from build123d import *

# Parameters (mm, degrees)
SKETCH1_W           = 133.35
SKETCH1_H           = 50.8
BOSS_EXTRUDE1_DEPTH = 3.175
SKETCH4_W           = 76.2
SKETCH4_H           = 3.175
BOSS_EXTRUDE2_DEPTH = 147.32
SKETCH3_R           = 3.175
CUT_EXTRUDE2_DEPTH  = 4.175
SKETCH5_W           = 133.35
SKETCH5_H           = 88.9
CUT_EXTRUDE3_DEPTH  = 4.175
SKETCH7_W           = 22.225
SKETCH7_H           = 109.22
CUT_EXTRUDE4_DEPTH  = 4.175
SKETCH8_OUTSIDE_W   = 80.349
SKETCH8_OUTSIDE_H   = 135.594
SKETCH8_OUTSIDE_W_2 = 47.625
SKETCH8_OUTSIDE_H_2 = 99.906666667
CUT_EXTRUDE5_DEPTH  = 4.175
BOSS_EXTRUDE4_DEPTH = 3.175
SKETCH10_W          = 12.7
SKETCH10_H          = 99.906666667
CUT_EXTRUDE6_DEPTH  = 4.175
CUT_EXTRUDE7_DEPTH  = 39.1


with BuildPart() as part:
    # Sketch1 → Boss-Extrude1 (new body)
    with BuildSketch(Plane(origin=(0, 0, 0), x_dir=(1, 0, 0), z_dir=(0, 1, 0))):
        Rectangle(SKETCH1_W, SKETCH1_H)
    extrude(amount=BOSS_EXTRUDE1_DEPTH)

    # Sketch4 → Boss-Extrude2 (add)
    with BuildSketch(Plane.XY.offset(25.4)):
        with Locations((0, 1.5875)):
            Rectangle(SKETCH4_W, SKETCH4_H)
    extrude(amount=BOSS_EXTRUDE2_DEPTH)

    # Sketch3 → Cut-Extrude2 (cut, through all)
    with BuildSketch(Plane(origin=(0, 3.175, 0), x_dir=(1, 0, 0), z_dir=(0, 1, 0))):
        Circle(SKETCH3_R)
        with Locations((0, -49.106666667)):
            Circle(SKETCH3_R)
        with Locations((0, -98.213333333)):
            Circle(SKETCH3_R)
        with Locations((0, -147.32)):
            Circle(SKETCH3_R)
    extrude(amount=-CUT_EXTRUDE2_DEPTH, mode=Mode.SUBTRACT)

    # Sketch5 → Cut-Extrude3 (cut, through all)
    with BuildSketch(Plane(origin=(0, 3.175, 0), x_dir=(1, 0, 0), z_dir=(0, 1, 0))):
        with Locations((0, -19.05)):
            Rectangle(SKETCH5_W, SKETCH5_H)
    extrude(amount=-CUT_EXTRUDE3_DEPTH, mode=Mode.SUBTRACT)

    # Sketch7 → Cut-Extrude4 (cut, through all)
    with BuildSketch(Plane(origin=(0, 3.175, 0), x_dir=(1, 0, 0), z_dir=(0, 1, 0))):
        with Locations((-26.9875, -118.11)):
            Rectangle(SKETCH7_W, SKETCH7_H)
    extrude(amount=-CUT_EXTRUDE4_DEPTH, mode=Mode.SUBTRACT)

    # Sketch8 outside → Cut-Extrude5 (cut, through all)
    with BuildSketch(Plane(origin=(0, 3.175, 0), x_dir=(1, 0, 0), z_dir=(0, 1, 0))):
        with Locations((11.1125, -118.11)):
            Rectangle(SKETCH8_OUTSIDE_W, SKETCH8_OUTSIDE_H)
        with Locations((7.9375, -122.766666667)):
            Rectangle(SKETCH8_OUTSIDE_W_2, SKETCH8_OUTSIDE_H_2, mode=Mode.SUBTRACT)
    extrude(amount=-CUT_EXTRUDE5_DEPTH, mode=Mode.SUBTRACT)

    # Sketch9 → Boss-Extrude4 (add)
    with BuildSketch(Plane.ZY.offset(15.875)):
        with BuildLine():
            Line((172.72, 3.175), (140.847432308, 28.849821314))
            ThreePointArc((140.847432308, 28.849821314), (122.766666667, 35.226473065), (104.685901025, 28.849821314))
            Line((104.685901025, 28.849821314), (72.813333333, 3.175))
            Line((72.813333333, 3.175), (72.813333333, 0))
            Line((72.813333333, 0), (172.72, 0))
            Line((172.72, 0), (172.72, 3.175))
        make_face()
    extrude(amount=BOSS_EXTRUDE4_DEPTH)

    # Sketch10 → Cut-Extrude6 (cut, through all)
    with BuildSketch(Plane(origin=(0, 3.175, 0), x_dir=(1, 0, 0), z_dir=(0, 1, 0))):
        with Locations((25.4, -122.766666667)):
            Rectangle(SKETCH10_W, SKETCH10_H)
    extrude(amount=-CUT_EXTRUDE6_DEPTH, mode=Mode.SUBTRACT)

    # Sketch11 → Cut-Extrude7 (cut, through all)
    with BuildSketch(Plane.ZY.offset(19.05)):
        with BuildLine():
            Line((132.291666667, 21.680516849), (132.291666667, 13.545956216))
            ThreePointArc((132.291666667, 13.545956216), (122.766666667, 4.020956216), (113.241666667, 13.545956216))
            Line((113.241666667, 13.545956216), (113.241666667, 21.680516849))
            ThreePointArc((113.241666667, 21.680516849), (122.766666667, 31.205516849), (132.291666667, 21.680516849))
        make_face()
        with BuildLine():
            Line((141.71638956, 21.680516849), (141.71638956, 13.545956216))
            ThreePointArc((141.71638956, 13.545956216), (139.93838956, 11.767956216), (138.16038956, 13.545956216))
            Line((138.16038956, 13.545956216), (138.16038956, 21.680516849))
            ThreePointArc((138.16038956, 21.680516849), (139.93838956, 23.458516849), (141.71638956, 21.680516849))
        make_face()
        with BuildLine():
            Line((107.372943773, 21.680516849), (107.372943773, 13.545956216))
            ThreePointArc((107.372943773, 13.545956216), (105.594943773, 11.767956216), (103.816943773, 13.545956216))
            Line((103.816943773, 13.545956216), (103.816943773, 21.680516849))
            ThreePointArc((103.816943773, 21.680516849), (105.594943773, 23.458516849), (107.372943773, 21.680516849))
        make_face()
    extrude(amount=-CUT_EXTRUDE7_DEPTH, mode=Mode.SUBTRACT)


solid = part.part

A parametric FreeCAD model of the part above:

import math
import FreeCAD as App
import Part
import Sketcher
Q = App.Units.Quantity

doc = App.newDocument("Part")
body = doc.addObject("PartDesign::Body", "Body")

# Sketch on XZ plane
sketch1 = body.newObject("Sketcher::SketchObject", "Sketch")
sketch1.AttachmentSupport = (doc.getObject("XZ_Plane"), [""])
sketch1.MapMode = "FlatFace"
sketch1.addGeometry(Part.LineSegment(App.Vector(-67, -25, 0), App.Vector(-67, 25, 0)), False)
sketch1.addGeometry(Part.LineSegment(App.Vector(-67, 25, 0), App.Vector(67, 25, 0)), False)
sketch1.addGeometry(Part.LineSegment(App.Vector(67, 25, 0), App.Vector(67, -25, 0)), False)
sketch1.addGeometry(Part.LineSegment(App.Vector(67, -25, 0), App.Vector(-67, -25, 0)), False)
sketch1.addConstraint(Sketcher.Constraint("Coincident", 0, 2, 1, 1))
sketch1.addConstraint(Sketcher.Constraint("Coincident", 1, 2, 2, 1))
sketch1.addConstraint(Sketcher.Constraint("Coincident", 2, 2, 3, 1))
sketch1.addConstraint(Sketcher.Constraint("Coincident", 3, 2, 0, 1))
sketch1.addConstraint(Sketcher.Constraint("Vertical", 0))
sketch1.addConstraint(Sketcher.Constraint("Horizontal", 1))
sketch1.addConstraint(Sketcher.Constraint("Vertical", 2))
sketch1.addConstraint(Sketcher.Constraint("Horizontal", 3))
sketch1.addConstraint(Sketcher.Constraint("Symmetric", 0, 2, 2, 2, -1, 1))
sketch1.addConstraint(Sketcher.Constraint("DistanceY", 0, 1, 0, 2, Q("2 in")))
sketch1.addConstraint(Sketcher.Constraint("DistanceX", 1, 1, 1, 2, Q("5.25 in")))
pad1 = body.newObject("PartDesign::Pad", "Pad")
pad1.Profile = sketch1
pad1.Length = Q("0.125 in")
pad1.Reversed = True

# Sketch on XY plane
sketch2 = body.newObject("Sketcher::SketchObject", "Sketch001")
sketch2.AttachmentSupport = (doc.getObject("XY_Plane"), [""])
sketch2.MapMode = "FlatFace"
sketch2.AttachmentOffset = App.Placement(App.Vector(0, 0, 1 * 25.4), App.Rotation())
sketch2.addGeometry(Part.LineSegment(App.Vector(-38.1, 3.2, 0), App.Vector(-38.1, 0, 0)), False)
sketch2.addGeometry(Part.LineSegment(App.Vector(-38.1, 0, 0), App.Vector(38.1, 0, 0)), False)
sketch2.addGeometry(Part.LineSegment(App.Vector(38.1, 0, 0), App.Vector(38.1, 3.2, 0)), False)
sketch2.addGeometry(Part.LineSegment(App.Vector(38.1, 3.2, 0), App.Vector(-38.1, 3.2, 0)), False)
sketch2.addConstraint(Sketcher.Constraint("Coincident", 0, 2, 1, 1))
sketch2.addConstraint(Sketcher.Constraint("Coincident", 1, 2, 2, 1))
sketch2.addConstraint(Sketcher.Constraint("Coincident", 2, 2, 3, 1))
sketch2.addConstraint(Sketcher.Constraint("Coincident", 3, 2, 0, 1))
sketch2.addConstraint(Sketcher.Constraint("Vertical", 0))
sketch2.addConstraint(Sketcher.Constraint("Horizontal", 1))
sketch2.addConstraint(Sketcher.Constraint("Vertical", 2))
sketch2.addConstraint(Sketcher.Constraint("Horizontal", 3))
sketch2.addConstraint(Sketcher.Constraint("Symmetric", 0, 2, 1, 2, -1, 1))
sketch2.addConstraint(Sketcher.Constraint("DistanceX", 1, 1, 1, 2, Q("3 in")))
sketch2.addConstraint(Sketcher.Constraint("DistanceY", 0, 2, 0, 1, Q("0.125 in")))
pad2 = body.newObject("PartDesign::Pad", "Pad001")
pad2.Profile = sketch2
pad2.Length = Q("5.8 in")

# Sketch on XZ plane
sketch3 = body.newObject("Sketcher::SketchObject", "Sketch002")
sketch3.AttachmentSupport = (doc.getObject("XZ_Plane"), [""])
sketch3.MapMode = "FlatFace"
sketch3.AttachmentOffset = App.Placement(App.Vector(0, 0, -0.125 * 25.4), App.Rotation())
sketch3.addGeometry(Part.Circle(App.Vector(0, 0, 0), App.Vector(0, 0, 1), 3.2), False)
sketch3.addGeometry(Part.Circle(App.Vector(0, 49.1, 0), App.Vector(0, 0, 1), 3.2), False)
sketch3.addGeometry(Part.Circle(App.Vector(0, 98.2, 0), App.Vector(0, 0, 1), 3.2), False)
sketch3.addGeometry(Part.Circle(App.Vector(0, 147.3, 0), App.Vector(0, 0, 1), 3.2), False)
sketch3.addConstraint(Sketcher.Constraint("Coincident", 0, 3, -1, 1))
sketch3.addConstraint(Sketcher.Constraint("Equal", 0, 1))
sketch3.addConstraint(Sketcher.Constraint("Equal", 1, 2))
sketch3.addConstraint(Sketcher.Constraint("Equal", 2, 3))
sketch3.addConstraint(Sketcher.Constraint("PointOnObject", 1, 3, -2))
sketch3.addConstraint(Sketcher.Constraint("PointOnObject", 2, 3, -2))
sketch3.addConstraint(Sketcher.Constraint("PointOnObject", 3, 3, -2))
sketch3.addConstraint(Sketcher.Constraint("Diameter", 0, Q("0.25 in")))
sketch3.addConstraint(Sketcher.Constraint("DistanceY", -1, 1, 3, 3, Q("5.8 in")))
sketch3.addConstraint(Sketcher.Constraint("DistanceY", -1, 1, 1, 3, Q("49.106667 mm")))
sketch3.addConstraint(Sketcher.Constraint("DistanceY", -1, 1, 2, 3, Q("98.213333 mm")))
pocket1 = body.newObject("PartDesign::Pocket", "Pocket")
pocket1.Profile = sketch3
pocket1.Type = "ThroughAll"
pocket1.Reversed = True

# Sketch on XZ plane
sketch4 = body.newObject("Sketcher::SketchObject", "Sketch003")
sketch4.AttachmentSupport = (doc.getObject("XZ_Plane"), [""])
sketch4.MapMode = "FlatFace"
sketch4.AttachmentOffset = App.Placement(App.Vector(0, 0, -0.125 * 25.4), App.Rotation())
sketch4.addGeometry(Part.LineSegment(App.Vector(-67, -25, 0), App.Vector(-67, 64, 0)), False)
sketch4.addGeometry(Part.LineSegment(App.Vector(-67, 64, 0), App.Vector(67, 64, 0)), False)
sketch4.addGeometry(Part.LineSegment(App.Vector(67, 64, 0), App.Vector(67, -25, 0)), False)
sketch4.addGeometry(Part.LineSegment(App.Vector(67, -25, 0), App.Vector(-67, -25, 0)), False)
sketch4.addConstraint(Sketcher.Constraint("Coincident", 0, 2, 1, 1))
sketch4.addConstraint(Sketcher.Constraint("Coincident", 1, 2, 2, 1))
sketch4.addConstraint(Sketcher.Constraint("Coincident", 2, 2, 3, 1))
sketch4.addConstraint(Sketcher.Constraint("Coincident", 3, 2, 0, 1))
sketch4.addConstraint(Sketcher.Constraint("Vertical", 0))
sketch4.addConstraint(Sketcher.Constraint("Horizontal", 1))
sketch4.addConstraint(Sketcher.Constraint("Vertical", 2))
sketch4.addConstraint(Sketcher.Constraint("Horizontal", 3))
sketch4.addConstraint(Sketcher.Constraint("DistanceY", 0, 1, 0, 2, Q("3.5 in")))
sketch4.addConstraint(Sketcher.Constraint("DistanceY", 2, 2, -1, 1, Q("1 in")))
sketch4.addConstraint(Sketcher.Constraint("DistanceX", 1, 1, 1, 2, Q("5.25 in")))
sketch4.addConstraint(Sketcher.Constraint("DistanceX", 0, 2, -1, 1, Q("2.625 in")))
pocket2 = body.newObject("PartDesign::Pocket", "Pocket001")
pocket2.Profile = sketch4
pocket2.Type = "ThroughAll"
pocket2.Reversed = True

# Sketch on XZ plane
sketch5 = body.newObject("Sketcher::SketchObject", "Sketch004")
sketch5.AttachmentSupport = (doc.getObject("XZ_Plane"), [""])
sketch5.MapMode = "FlatFace"
sketch5.AttachmentOffset = App.Placement(App.Vector(0, 0, -0.125 * 25.4), App.Rotation())
sketch5.addGeometry(Part.LineSegment(App.Vector(-38, 64, 0), App.Vector(-38, 173, 0)), False)
sketch5.addGeometry(Part.LineSegment(App.Vector(-38, 173, 0), App.Vector(-16, 173, 0)), False)
sketch5.addGeometry(Part.LineSegment(App.Vector(-16, 173, 0), App.Vector(-16, 64, 0)), False)
sketch5.addGeometry(Part.LineSegment(App.Vector(-16, 64, 0), App.Vector(-38, 64, 0)), False)
sketch5.addConstraint(Sketcher.Constraint("Coincident", 0, 2, 1, 1))
sketch5.addConstraint(Sketcher.Constraint("Coincident", 1, 2, 2, 1))
sketch5.addConstraint(Sketcher.Constraint("Coincident", 2, 2, 3, 1))
sketch5.addConstraint(Sketcher.Constraint("Coincident", 3, 2, 0, 1))
sketch5.addConstraint(Sketcher.Constraint("Vertical", 0))
sketch5.addConstraint(Sketcher.Constraint("Horizontal", 1))
sketch5.addConstraint(Sketcher.Constraint("Vertical", 2))
sketch5.addConstraint(Sketcher.Constraint("Horizontal", 3))
sketch5.addConstraint(Sketcher.Constraint("DistanceY", 0, 1, 0, 2, Q("4.3 in")))
sketch5.addConstraint(Sketcher.Constraint("DistanceX", 0, 2, -1, 1, Q("1.5 in")))
sketch5.addConstraint(Sketcher.Constraint("DistanceY", -1, 1, 0, 2, Q("6.8 in")))
sketch5.addConstraint(Sketcher.Constraint("DistanceX", 1, 1, 1, 2, Q("0.875 in")))
pocket3 = body.newObject("PartDesign::Pocket", "Pocket002")
pocket3.Profile = sketch5
pocket3.Type = "ThroughAll"
pocket3.Reversed = True

# Sketch on XZ plane
sketch6 = body.newObject("Sketcher::SketchObject", "Sketch005")
sketch6.AttachmentSupport = (doc.getObject("XZ_Plane"), [""])
sketch6.MapMode = "FlatFace"
sketch6.AttachmentOffset = App.Placement(App.Vector(0, 0, -0.125 * 25.4), App.Rotation())
sketch6.addGeometry(Part.LineSegment(App.Vector(-29, 50, 0), App.Vector(-29, 186, 0)), False)
sketch6.addGeometry(Part.LineSegment(App.Vector(-29, 186, 0), App.Vector(51, 186, 0)), False)
sketch6.addGeometry(Part.LineSegment(App.Vector(51, 186, 0), App.Vector(51, 50, 0)), False)
sketch6.addGeometry(Part.LineSegment(App.Vector(51, 50, 0), App.Vector(-29, 50, 0)), False)
sketch6.addGeometry(Part.LineSegment(App.Vector(32, 173, 0), App.Vector(-16, 173, 0)), False)
sketch6.addGeometry(Part.LineSegment(App.Vector(-16, 173, 0), App.Vector(-16, 73, 0)), False)
sketch6.addGeometry(Part.LineSegment(App.Vector(-16, 73, 0), App.Vector(32, 73, 0)), False)
sketch6.addGeometry(Part.LineSegment(App.Vector(32, 73, 0), App.Vector(32, 173, 0)), False)
sketch6.addConstraint(Sketcher.Constraint("Coincident", 0, 2, 1, 1))
sketch6.addConstraint(Sketcher.Constraint("Coincident", 1, 2, 2, 1))
sketch6.addConstraint(Sketcher.Constraint("Coincident", 2, 2, 3, 1))
sketch6.addConstraint(Sketcher.Constraint("Coincident", 3, 2, 0, 1))
sketch6.addConstraint(Sketcher.Constraint("Coincident", 4, 2, 5, 1))
sketch6.addConstraint(Sketcher.Constraint("Coincident", 5, 2, 6, 1))
sketch6.addConstraint(Sketcher.Constraint("Coincident", 6, 2, 7, 1))
sketch6.addConstraint(Sketcher.Constraint("Coincident", 7, 2, 4, 1))
sketch6.addConstraint(Sketcher.Constraint("Vertical", 0))
sketch6.addConstraint(Sketcher.Constraint("Horizontal", 1))
sketch6.addConstraint(Sketcher.Constraint("Vertical", 2))
sketch6.addConstraint(Sketcher.Constraint("Horizontal", 3))
sketch6.addConstraint(Sketcher.Constraint("Horizontal", 4))
sketch6.addConstraint(Sketcher.Constraint("Vertical", 5))
sketch6.addConstraint(Sketcher.Constraint("Horizontal", 6))
sketch6.addConstraint(Sketcher.Constraint("Vertical", 7))
sketch6.addConstraint(Sketcher.Constraint("DistanceY", -1, 1, 4, 2, Q("6.8 in")))
sketch6.addConstraint(Sketcher.Constraint("DistanceX", 4, 2, 4, 1, Q("1.875 in")))
sketch6.addConstraint(Sketcher.Constraint("DistanceX", -1, 1, 6, 2, Q("1.25 in")))
sketch6.addConstraint(Sketcher.Constraint("DistanceX", 1, 1, 1, 2, Q("80.349 mm")))
sketch6.addConstraint(Sketcher.Constraint("DistanceY", 0, 1, 0, 2, Q("135.594 mm")))
sketch6.addConstraint(Sketcher.Constraint("DistanceX", 0, 2, -1, 1, Q("29.062 mm")))
sketch6.addConstraint(Sketcher.Constraint("DistanceY", -1, 1, 0, 2, Q("185.907 mm")))
sketch6.addConstraint(Sketcher.Constraint("DistanceY", 5, 2, 5, 1, Q("99.906667 mm")))
pocket4 = body.newObject("PartDesign::Pocket", "Pocket003")
pocket4.Profile = sketch6
pocket4.Type = "ThroughAll"
pocket4.Reversed = True

# Sketch on YZ plane
sketch7 = body.newObject("Sketcher::SketchObject", "Sketch006")
sketch7.AttachmentSupport = (doc.getObject("YZ_Plane"), [""])
sketch7.MapMode = "FlatFace"
sketch7.AttachmentOffset = App.Placement(App.Vector(0, 0, -0.625 * 25.4), App.Rotation())
sketch7.addGeometry(Part.LineSegment(App.Vector(3.2, 172.7, 0), App.Vector(28.8, 140.8, 0)), False)
sketch7.addGeometry(Part.ArcOfCircle(Part.Circle(App.Vector(6.4, 122.8, 0), App.Vector(0, 0, 1), 28.8), math.radians(-39), math.radians(39)), False)
sketch7.addGeometry(Part.LineSegment(App.Vector(28.8, 104.7, 0), App.Vector(3.2, 72.8, 0)), False)
sketch7.addGeometry(Part.LineSegment(App.Vector(3.2, 72.8, 0), App.Vector(0, 72.8, 0)), False)
sketch7.addGeometry(Part.LineSegment(App.Vector(0, 72.8, 0), App.Vector(0, 172.7, 0)), False)
sketch7.addGeometry(Part.LineSegment(App.Vector(0, 172.7, 0), App.Vector(3.2, 172.7, 0)), False)
sketch7.addConstraint(Sketcher.Constraint("Tangent", 0, 2, 1, 2))
sketch7.addConstraint(Sketcher.Constraint("Tangent", 1, 1, 2, 1))
sketch7.addConstraint(Sketcher.Constraint("Coincident", 2, 2, 3, 1))
sketch7.addConstraint(Sketcher.Constraint("Coincident", 3, 2, 4, 1))
sketch7.addConstraint(Sketcher.Constraint("Coincident", 4, 2, 5, 1))
sketch7.addConstraint(Sketcher.Constraint("Coincident", 5, 2, 0, 1))
sketch7.addConstraint(Sketcher.Constraint("Horizontal", 3))
sketch7.addConstraint(Sketcher.Constraint("Vertical", 4))
sketch7.addConstraint(Sketcher.Constraint("Horizontal", 5))
sketch7.addConstraint(Sketcher.Constraint("PointOnObject", 3, 2, -2))
sketch7.addConstraint(Sketcher.Constraint("Vertical", 0, 2, 1, 1))
sketch7.addConstraint(Sketcher.Constraint("Vertical", 2, 2, 5, 2))
sketch7.addConstraint(Sketcher.Constraint("DistanceY", -1, 1, 4, 2, Q("6.8 in")))
sketch7.addConstraint(Sketcher.Constraint("DistanceX", 3, 2, 3, 1, Q("0.125 in")))
sketch7.addConstraint(Sketcher.Constraint("Radius", 1, Q("28.822005 mm")))
sketch7.addConstraint(Sketcher.Constraint("DistanceY", -1, 1, 1, 1, Q("104.685901 mm")))
sketch7.addConstraint(Sketcher.Constraint("Distance", 0, Q("40.92746 mm")))
pad3 = body.newObject("PartDesign::Pad", "Pad002")
pad3.Profile = sketch7
pad3.Length = Q("0.125 in")
pad3.Reversed = True

# Sketch on XZ plane
sketch8 = body.newObject("Sketcher::SketchObject", "Sketch007")
sketch8.AttachmentSupport = (doc.getObject("XZ_Plane"), [""])
sketch8.MapMode = "FlatFace"
sketch8.AttachmentOffset = App.Placement(App.Vector(0, 0, -0.125 * 25.4), App.Rotation())
sketch8.addGeometry(Part.LineSegment(App.Vector(19, 73, 0), App.Vector(19, 173, 0)), False)
sketch8.addGeometry(Part.LineSegment(App.Vector(19, 173, 0), App.Vector(32, 173, 0)), False)
sketch8.addGeometry(Part.LineSegment(App.Vector(32, 173, 0), App.Vector(32, 73, 0)), False)
sketch8.addGeometry(Part.LineSegment(App.Vector(32, 73, 0), App.Vector(19, 73, 0)), False)
sketch8.addConstraint(Sketcher.Constraint("Coincident", 0, 2, 1, 1))
sketch8.addConstraint(Sketcher.Constraint("Coincident", 1, 2, 2, 1))
sketch8.addConstraint(Sketcher.Constraint("Coincident", 2, 2, 3, 1))
sketch8.addConstraint(Sketcher.Constraint("Coincident", 3, 2, 0, 1))
sketch8.addConstraint(Sketcher.Constraint("Vertical", 0))
sketch8.addConstraint(Sketcher.Constraint("Horizontal", 1))
sketch8.addConstraint(Sketcher.Constraint("Vertical", 2))
sketch8.addConstraint(Sketcher.Constraint("Horizontal", 3))
sketch8.addConstraint(Sketcher.Constraint("DistanceX", 1, 1, 1, 2, Q("0.5 in")))
sketch8.addConstraint(Sketcher.Constraint("DistanceY", -1, 1, 0, 2, Q("6.8 in")))
sketch8.addConstraint(Sketcher.Constraint("DistanceX", -1, 1, 0, 2, Q("0.75 in")))
sketch8.addConstraint(Sketcher.Constraint("DistanceY", 0, 1, 0, 2, Q("99.906667 mm")))
pocket5 = body.newObject("PartDesign::Pocket", "Pocket004")
pocket5.Profile = sketch8
pocket5.Type = "ThroughAll"
pocket5.Reversed = True

# Sketch on YZ plane
sketch9 = body.newObject("Sketcher::SketchObject", "Sketch008")
sketch9.AttachmentSupport = (doc.getObject("YZ_Plane"), [""])
sketch9.MapMode = "FlatFace"
sketch9.AttachmentOffset = App.Placement(App.Vector(0, 0, -0.75 * 25.4), App.Rotation())
sketch9.addGeometry(Part.LineSegment(App.Vector(13.5, 132.3, 0), App.Vector(21.7, 132.3, 0)), False)
sketch9.addGeometry(Part.ArcOfCircle(Part.Circle(App.Vector(21.7, 122.8, 0), App.Vector(0, 0, 1), 9.5), math.radians(-90), math.radians(90)), False)
sketch9.addGeometry(Part.LineSegment(App.Vector(21.7, 113.2, 0), App.Vector(13.5, 113.2, 0)), False)
sketch9.addGeometry(Part.ArcOfCircle(Part.Circle(App.Vector(13.5, 122.8, 0), App.Vector(0, 0, 1), 9.5), math.radians(90), math.radians(270)), False)
sketch9.addGeometry(Part.LineSegment(App.Vector(13.5, 141.7, 0), App.Vector(21.7, 141.7, 0)), False)
sketch9.addGeometry(Part.ArcOfCircle(Part.Circle(App.Vector(21.7, 139.9, 0), App.Vector(0, 0, 1), 1.8), math.radians(-90), math.radians(90)), False)
sketch9.addGeometry(Part.LineSegment(App.Vector(21.7, 138.2, 0), App.Vector(13.5, 138.2, 0)), False)
sketch9.addGeometry(Part.ArcOfCircle(Part.Circle(App.Vector(13.5, 139.9, 0), App.Vector(0, 0, 1), 1.8), math.radians(90), math.radians(270)), False)
sketch9.addGeometry(Part.LineSegment(App.Vector(13.5, 107.4, 0), App.Vector(21.7, 107.4, 0)), False)
sketch9.addGeometry(Part.ArcOfCircle(Part.Circle(App.Vector(21.7, 105.6, 0), App.Vector(0, 0, 1), 1.8), math.radians(-90), math.radians(90)), False)
sketch9.addGeometry(Part.LineSegment(App.Vector(21.7, 103.8, 0), App.Vector(13.5, 103.8, 0)), False)
sketch9.addGeometry(Part.ArcOfCircle(Part.Circle(App.Vector(13.5, 105.6, 0), App.Vector(0, 0, 1), 1.8), math.radians(90), math.radians(270)), False)
sketch9.addConstraint(Sketcher.Constraint("Tangent", 0, 2, 1, 2))
sketch9.addConstraint(Sketcher.Constraint("Tangent", 1, 1, 2, 1))
sketch9.addConstraint(Sketcher.Constraint("Tangent", 2, 2, 3, 2))
sketch9.addConstraint(Sketcher.Constraint("Tangent", 3, 1, 0, 1))
sketch9.addConstraint(Sketcher.Constraint("Tangent", 4, 2, 5, 2))
sketch9.addConstraint(Sketcher.Constraint("Tangent", 5, 1, 6, 1))
sketch9.addConstraint(Sketcher.Constraint("Tangent", 6, 2, 7, 2))
sketch9.addConstraint(Sketcher.Constraint("Tangent", 7, 1, 4, 1))
sketch9.addConstraint(Sketcher.Constraint("Tangent", 8, 2, 9, 2))
sketch9.addConstraint(Sketcher.Constraint("Tangent", 9, 1, 10, 1))
sketch9.addConstraint(Sketcher.Constraint("Tangent", 10, 2, 11, 2))
sketch9.addConstraint(Sketcher.Constraint("Tangent", 11, 1, 8, 1))
sketch9.addConstraint(Sketcher.Constraint("Horizontal", 0))
sketch9.addConstraint(Sketcher.Constraint("Horizontal", 2))
sketch9.addConstraint(Sketcher.Constraint("Horizontal", 4))
sketch9.addConstraint(Sketcher.Constraint("Horizontal", 6))
sketch9.addConstraint(Sketcher.Constraint("Horizontal", 8))
sketch9.addConstraint(Sketcher.Constraint("Horizontal", 10))
sketch9.addConstraint(Sketcher.Constraint("Equal", 7, 9))
sketch9.addConstraint(Sketcher.Constraint("Vertical", 1, 3, 5, 3))
sketch9.addConstraint(Sketcher.Constraint("Vertical", 3, 3, 7, 3))
sketch9.addConstraint(Sketcher.Constraint("Vertical", 5, 3, 9, 3))
sketch9.addConstraint(Sketcher.Constraint("Vertical", 7, 3, 11, 3))
sketch9.addConstraint(Sketcher.Constraint("Radius", 5, Q("0.07 in")))
sketch9.addConstraint(Sketcher.Constraint("Radius", 1, Q("0.375 in")))
sketch9.addConstraint(Sketcher.Constraint("DistanceX", 0, 1, 0, 2, Q("8.134561 mm")))
sketch9.addConstraint(Sketcher.Constraint("DistanceY", -1, 1, 5, 3, Q("139.93839 mm")))
sketch9.addConstraint(Sketcher.Constraint("DistanceX", -1, 1, 1, 3, Q("21.680517 mm")))
sketch9.addConstraint(Sketcher.Constraint("DistanceY", -1, 1, 1, 3, Q("122.766667 mm")))
sketch9.addConstraint(Sketcher.Constraint("DistanceY", -1, 1, 9, 3, Q("105.594944 mm")))
pocket6 = body.newObject("PartDesign::Pocket", "Pocket005")
pocket6.Profile = sketch9
pocket6.Type = "ThroughAll"
pocket6.Reversed = True

doc.recompute()
